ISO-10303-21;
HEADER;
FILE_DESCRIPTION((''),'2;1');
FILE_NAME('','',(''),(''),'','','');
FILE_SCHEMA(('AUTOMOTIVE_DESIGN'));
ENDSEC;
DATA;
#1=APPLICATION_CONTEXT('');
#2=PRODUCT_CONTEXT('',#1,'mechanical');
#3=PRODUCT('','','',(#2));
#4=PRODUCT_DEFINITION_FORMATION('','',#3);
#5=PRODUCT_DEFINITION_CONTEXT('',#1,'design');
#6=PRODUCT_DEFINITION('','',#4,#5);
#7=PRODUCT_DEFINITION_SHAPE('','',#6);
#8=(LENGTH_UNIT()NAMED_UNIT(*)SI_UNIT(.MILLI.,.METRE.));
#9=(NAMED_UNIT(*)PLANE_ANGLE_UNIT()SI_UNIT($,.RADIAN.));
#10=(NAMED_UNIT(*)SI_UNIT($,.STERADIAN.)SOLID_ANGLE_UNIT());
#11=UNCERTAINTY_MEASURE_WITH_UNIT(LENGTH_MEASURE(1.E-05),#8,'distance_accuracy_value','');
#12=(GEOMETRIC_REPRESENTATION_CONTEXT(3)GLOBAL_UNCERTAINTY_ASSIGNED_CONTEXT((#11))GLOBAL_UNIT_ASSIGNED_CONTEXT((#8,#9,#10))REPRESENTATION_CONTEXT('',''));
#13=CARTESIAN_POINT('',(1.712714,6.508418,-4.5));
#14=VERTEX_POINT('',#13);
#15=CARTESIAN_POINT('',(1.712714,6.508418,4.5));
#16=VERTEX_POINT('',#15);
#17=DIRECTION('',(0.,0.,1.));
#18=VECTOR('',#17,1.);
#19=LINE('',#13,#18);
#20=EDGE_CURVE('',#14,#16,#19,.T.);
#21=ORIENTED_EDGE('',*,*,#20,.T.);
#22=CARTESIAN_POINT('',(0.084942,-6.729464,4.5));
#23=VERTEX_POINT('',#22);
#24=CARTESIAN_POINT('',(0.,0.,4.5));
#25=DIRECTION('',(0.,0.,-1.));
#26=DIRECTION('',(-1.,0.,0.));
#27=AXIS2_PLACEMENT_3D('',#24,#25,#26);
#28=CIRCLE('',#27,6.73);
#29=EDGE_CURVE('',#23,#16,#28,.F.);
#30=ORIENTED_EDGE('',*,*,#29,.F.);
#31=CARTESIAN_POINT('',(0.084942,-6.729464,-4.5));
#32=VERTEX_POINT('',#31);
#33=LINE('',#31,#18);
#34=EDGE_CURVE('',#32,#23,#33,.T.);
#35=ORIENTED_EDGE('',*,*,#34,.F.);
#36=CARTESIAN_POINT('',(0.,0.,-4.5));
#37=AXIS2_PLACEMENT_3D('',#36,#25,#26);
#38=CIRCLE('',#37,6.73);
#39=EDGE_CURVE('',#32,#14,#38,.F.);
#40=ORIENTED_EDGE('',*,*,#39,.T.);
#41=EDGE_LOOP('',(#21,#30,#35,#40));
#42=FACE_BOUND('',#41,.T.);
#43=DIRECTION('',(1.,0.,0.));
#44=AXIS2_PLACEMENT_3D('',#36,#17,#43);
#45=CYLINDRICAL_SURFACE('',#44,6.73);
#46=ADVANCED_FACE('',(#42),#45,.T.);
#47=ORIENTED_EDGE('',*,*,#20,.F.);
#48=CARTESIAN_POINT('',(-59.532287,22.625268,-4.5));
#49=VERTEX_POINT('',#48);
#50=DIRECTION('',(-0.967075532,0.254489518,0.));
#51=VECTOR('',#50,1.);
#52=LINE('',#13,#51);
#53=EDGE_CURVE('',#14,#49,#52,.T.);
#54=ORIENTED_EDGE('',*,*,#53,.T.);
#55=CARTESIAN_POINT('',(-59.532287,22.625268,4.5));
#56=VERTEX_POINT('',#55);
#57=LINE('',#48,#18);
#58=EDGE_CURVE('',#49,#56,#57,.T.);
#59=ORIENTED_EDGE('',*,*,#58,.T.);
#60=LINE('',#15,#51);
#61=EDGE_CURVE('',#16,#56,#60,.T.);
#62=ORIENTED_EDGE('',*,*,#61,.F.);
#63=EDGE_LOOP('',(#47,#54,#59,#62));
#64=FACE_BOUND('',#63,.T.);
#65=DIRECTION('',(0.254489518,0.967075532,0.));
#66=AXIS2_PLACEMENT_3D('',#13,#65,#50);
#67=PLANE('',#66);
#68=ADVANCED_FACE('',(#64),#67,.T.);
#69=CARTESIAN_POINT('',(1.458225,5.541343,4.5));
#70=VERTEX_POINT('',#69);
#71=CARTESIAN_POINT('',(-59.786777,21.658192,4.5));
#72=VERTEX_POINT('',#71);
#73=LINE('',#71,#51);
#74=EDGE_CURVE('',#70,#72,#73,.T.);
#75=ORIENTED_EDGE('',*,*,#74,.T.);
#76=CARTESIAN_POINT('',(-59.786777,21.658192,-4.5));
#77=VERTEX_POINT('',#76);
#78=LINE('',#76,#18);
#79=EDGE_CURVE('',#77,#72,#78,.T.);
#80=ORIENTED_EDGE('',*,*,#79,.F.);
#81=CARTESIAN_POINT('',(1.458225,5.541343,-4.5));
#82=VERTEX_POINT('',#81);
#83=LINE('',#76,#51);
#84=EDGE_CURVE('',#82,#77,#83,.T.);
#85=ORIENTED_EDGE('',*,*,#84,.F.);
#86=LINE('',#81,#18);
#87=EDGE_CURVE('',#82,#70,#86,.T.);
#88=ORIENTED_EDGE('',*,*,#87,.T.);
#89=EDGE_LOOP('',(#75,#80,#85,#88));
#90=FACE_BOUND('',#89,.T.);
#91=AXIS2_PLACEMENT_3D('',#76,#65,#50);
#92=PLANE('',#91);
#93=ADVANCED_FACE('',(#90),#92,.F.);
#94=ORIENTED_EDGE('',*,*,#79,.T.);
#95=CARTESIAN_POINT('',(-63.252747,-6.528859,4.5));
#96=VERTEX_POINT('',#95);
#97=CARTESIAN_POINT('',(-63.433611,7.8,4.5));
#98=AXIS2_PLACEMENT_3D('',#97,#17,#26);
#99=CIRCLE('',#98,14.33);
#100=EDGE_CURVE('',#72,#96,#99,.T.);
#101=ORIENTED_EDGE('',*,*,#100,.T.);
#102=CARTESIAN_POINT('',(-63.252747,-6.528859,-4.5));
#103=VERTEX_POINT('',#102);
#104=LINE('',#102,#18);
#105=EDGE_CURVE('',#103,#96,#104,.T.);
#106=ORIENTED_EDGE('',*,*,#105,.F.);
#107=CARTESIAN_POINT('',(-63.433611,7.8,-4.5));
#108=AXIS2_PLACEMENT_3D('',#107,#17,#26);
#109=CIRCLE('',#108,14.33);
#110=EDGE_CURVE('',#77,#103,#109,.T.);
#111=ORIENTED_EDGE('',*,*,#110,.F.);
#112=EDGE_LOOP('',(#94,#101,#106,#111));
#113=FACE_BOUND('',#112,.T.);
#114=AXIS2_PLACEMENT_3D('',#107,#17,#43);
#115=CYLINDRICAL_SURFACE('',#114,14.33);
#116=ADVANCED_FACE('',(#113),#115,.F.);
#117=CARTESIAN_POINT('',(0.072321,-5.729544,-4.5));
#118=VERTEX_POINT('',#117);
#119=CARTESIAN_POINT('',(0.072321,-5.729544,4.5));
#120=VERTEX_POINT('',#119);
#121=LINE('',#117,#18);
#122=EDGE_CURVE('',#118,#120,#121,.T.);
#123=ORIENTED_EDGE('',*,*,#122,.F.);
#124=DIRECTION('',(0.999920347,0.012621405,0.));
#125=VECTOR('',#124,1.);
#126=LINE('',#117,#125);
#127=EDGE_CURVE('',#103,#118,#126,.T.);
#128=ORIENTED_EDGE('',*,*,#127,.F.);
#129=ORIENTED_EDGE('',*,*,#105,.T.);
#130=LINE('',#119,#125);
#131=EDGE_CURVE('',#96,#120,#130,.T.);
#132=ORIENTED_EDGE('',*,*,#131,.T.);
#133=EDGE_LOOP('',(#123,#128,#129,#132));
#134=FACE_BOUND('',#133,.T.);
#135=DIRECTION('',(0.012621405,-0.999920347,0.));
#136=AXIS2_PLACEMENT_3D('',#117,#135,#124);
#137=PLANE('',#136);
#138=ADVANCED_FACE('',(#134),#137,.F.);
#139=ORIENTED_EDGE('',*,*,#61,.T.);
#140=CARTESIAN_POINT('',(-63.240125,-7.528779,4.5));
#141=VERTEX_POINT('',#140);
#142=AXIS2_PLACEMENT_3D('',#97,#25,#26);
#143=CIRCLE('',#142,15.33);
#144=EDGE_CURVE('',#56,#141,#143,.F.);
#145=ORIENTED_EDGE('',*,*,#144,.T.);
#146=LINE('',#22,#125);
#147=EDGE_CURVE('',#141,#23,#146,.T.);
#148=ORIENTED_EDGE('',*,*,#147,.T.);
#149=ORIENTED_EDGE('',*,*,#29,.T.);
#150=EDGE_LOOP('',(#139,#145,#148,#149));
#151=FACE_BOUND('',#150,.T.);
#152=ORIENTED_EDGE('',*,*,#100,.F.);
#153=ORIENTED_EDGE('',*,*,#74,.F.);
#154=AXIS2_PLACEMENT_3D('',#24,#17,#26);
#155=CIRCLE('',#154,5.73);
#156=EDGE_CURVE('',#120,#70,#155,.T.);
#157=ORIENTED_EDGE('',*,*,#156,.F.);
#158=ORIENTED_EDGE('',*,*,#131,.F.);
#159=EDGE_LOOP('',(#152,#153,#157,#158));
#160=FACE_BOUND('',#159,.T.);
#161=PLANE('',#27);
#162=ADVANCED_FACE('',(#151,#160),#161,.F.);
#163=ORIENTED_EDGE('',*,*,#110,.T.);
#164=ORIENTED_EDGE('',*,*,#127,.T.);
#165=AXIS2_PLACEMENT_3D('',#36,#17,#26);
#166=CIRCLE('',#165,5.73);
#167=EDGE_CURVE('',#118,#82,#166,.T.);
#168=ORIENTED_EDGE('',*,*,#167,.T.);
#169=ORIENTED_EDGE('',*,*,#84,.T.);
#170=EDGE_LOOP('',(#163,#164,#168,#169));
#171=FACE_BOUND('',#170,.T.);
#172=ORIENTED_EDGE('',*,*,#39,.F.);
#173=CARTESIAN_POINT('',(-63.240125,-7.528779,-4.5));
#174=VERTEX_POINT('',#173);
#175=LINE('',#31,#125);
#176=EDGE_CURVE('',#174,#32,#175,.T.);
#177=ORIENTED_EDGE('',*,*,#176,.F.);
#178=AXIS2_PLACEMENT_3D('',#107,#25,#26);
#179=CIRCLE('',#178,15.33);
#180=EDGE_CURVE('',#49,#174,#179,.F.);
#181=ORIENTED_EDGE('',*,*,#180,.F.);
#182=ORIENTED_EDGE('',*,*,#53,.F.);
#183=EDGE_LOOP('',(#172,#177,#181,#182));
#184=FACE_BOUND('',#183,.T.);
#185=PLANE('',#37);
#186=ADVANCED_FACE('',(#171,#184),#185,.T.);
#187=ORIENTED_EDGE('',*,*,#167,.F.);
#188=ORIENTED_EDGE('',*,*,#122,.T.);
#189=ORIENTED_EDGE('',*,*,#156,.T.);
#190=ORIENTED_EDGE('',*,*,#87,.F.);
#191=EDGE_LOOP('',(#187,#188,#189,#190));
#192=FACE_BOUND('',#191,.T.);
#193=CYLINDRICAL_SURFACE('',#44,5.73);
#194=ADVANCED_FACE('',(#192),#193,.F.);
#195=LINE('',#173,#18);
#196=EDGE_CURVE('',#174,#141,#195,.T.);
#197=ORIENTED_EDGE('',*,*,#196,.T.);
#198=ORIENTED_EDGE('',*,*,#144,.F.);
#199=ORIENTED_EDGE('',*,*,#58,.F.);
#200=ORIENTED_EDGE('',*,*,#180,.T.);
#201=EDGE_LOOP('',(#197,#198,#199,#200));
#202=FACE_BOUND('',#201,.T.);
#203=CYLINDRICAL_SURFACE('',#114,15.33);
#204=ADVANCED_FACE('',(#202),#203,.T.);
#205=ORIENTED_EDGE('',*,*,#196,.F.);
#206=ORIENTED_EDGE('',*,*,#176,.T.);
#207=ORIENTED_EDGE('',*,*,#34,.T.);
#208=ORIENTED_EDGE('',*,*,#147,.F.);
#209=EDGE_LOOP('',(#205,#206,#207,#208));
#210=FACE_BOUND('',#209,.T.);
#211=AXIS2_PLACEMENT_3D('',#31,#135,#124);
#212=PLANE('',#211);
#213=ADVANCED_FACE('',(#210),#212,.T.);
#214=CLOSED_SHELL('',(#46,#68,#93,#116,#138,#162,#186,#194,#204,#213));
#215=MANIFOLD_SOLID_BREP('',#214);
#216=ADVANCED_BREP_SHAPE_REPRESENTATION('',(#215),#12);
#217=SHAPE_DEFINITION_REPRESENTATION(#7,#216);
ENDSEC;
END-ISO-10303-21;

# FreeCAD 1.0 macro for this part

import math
import FreeCAD as App
import Part
import Sketcher
Q = App.Units.Quantity

doc = App.newDocument("Part")
params = doc.addObject("Spreadsheet::Sheet", "Params")
for row, (alias, value) in enumerate([
    ("sketch1_radius", "15.33 mm"),
    ("sketch1_radius2", "6.73 mm"),
    ("sketch1_radius3", "5.73 mm"),
    ("pad1_length", "4.5 mm"),
    ("pad1_length2", "4.5 mm"),
], start=1):
    params.set(f"A{row}", alias)
    params.set(f"B{row}", "=" + value)
    params.setAlias(f"B{row}", alias)

body = doc.addObject("PartDesign::Body", "Body")

# Sketch on XY plane
sketch1 = doc.addObject("Sketcher::SketchObject", "Sketch")
body.addObject(sketch1)
sketch1.AttachmentSupport = (doc.XY_Plane, [""])
sketch1.MapMode = "FlatFace"
sketch1.addGeometry(Part.LineSegment(App.Vector(1.712714, 6.508418, 0), App.Vector(-59.532287, 22.625268, 0)), False)
sketch1.addGeometry(Part.ArcOfCircle(Part.Circle(App.Vector(-63.433611, 7.8, 0), App.Vector(0, 0, 1), 15.33), math.radians(75.256661), math.radians(270.723172)), False)
sketch1.addGeometry(Part.LineSegment(App.Vector(-63.240125, -7.528779, 0), App.Vector(0.084942, -6.729464, 0)), False)
sketch1.addGeometry(Part.ArcOfCircle(Part.Circle(App.Vector(0, 0, 0), App.Vector(0, 0, 1), 6.73), math.radians(-89.276828), math.radians(75.256661)), False)
sketch1.addGeometry(Part.LineSegment(App.Vector(-59.786777, 21.658192, 0), App.Vector(1.458225, 5.541343, 0)), False)
sketch1.addGeometry(Part.ArcOfCircle(Part.Circle(App.Vector(0, 0, 0), App.Vector(0, 0, 1), 5.73), math.radians(-89.276828), math.radians(75.256661)), False)
sketch1.addGeometry(Part.LineSegment(App.Vector(0.072321, -5.729544, 0), App.Vector(-63.252747, -6.528859, 0)), False)
sketch1.addGeometry(Part.ArcOfCircle(Part.Circle(App.Vector(-63.433611, 7.8, 0), App.Vector(0, 0, 1), 14.33), math.radians(75.256661), math.radians(270.723172)), False)
sketch1.addConstraint(Sketcher.Constraint("Tangent", 0, 2, 1, 1))
sketch1.addConstraint(Sketcher.Constraint("Tangent", 1, 2, 2, 1))
sketch1.addConstraint(Sketcher.Constraint("Tangent", 2, 2, 3, 1))
sketch1.addConstraint(Sketcher.Constraint("Tangent", 3, 2, 0, 1))
sketch1.addConstraint(Sketcher.Constraint("Tangent", 4, 2, 5, 2))
sketch1.addConstraint(Sketcher.Constraint("Tangent", 5, 1, 6, 1))
sketch1.addConstraint(Sketcher.Constraint("Tangent", 6, 2, 7, 2))
sketch1.addConstraint(Sketcher.Constraint("Tangent", 7, 1, 4, 1))
sketch1.addConstraint(Sketcher.Constraint("Coincident", 3, 3, -1, 1))
sketch1.addConstraint(Sketcher.Constraint("Coincident", 5, 3, -1, 1))
sketch1.addConstraint(Sketcher.Constraint("Coincident", 7, 3, 1, 3))
sketch1.addConstraint(Sketcher.Constraint("Parallel", 0, 4))
sketch1.addConstraint(Sketcher.Constraint("Radius", 1, Q("15.33 mm")))
sketch1.addConstraint(Sketcher.Constraint("Radius", 3, Q("6.73 mm")))
sketch1.addConstraint(Sketcher.Constraint("Radius", 5, Q("5.73 mm")))
sketch1.addConstraint(Sketcher.Constraint("DistanceY", -1, 1, 1, 3, Q("7.8 mm")))
sketch1.addConstraint(Sketcher.Constraint("DistanceX", 0, 2, 3, 2, Q("61.245001 mm")))
sketch1.setExpression("Constraints[12]", "Params.sketch1_radius")
sketch1.setExpression("Constraints[13]", "Params.sketch1_radius2")
sketch1.setExpression("Constraints[14]", "Params.sketch1_radius3")
pad1 = doc.addObject("PartDesign::Pad", "Pad")
body.addObject(pad1)
pad1.Profile = sketch1
pad1.Type = "TwoLengths"
pad1.setExpression("Length", "Params.pad1_length")
pad1.setExpression("Length2", "Params.pad1_length2")

doc.recompute()
